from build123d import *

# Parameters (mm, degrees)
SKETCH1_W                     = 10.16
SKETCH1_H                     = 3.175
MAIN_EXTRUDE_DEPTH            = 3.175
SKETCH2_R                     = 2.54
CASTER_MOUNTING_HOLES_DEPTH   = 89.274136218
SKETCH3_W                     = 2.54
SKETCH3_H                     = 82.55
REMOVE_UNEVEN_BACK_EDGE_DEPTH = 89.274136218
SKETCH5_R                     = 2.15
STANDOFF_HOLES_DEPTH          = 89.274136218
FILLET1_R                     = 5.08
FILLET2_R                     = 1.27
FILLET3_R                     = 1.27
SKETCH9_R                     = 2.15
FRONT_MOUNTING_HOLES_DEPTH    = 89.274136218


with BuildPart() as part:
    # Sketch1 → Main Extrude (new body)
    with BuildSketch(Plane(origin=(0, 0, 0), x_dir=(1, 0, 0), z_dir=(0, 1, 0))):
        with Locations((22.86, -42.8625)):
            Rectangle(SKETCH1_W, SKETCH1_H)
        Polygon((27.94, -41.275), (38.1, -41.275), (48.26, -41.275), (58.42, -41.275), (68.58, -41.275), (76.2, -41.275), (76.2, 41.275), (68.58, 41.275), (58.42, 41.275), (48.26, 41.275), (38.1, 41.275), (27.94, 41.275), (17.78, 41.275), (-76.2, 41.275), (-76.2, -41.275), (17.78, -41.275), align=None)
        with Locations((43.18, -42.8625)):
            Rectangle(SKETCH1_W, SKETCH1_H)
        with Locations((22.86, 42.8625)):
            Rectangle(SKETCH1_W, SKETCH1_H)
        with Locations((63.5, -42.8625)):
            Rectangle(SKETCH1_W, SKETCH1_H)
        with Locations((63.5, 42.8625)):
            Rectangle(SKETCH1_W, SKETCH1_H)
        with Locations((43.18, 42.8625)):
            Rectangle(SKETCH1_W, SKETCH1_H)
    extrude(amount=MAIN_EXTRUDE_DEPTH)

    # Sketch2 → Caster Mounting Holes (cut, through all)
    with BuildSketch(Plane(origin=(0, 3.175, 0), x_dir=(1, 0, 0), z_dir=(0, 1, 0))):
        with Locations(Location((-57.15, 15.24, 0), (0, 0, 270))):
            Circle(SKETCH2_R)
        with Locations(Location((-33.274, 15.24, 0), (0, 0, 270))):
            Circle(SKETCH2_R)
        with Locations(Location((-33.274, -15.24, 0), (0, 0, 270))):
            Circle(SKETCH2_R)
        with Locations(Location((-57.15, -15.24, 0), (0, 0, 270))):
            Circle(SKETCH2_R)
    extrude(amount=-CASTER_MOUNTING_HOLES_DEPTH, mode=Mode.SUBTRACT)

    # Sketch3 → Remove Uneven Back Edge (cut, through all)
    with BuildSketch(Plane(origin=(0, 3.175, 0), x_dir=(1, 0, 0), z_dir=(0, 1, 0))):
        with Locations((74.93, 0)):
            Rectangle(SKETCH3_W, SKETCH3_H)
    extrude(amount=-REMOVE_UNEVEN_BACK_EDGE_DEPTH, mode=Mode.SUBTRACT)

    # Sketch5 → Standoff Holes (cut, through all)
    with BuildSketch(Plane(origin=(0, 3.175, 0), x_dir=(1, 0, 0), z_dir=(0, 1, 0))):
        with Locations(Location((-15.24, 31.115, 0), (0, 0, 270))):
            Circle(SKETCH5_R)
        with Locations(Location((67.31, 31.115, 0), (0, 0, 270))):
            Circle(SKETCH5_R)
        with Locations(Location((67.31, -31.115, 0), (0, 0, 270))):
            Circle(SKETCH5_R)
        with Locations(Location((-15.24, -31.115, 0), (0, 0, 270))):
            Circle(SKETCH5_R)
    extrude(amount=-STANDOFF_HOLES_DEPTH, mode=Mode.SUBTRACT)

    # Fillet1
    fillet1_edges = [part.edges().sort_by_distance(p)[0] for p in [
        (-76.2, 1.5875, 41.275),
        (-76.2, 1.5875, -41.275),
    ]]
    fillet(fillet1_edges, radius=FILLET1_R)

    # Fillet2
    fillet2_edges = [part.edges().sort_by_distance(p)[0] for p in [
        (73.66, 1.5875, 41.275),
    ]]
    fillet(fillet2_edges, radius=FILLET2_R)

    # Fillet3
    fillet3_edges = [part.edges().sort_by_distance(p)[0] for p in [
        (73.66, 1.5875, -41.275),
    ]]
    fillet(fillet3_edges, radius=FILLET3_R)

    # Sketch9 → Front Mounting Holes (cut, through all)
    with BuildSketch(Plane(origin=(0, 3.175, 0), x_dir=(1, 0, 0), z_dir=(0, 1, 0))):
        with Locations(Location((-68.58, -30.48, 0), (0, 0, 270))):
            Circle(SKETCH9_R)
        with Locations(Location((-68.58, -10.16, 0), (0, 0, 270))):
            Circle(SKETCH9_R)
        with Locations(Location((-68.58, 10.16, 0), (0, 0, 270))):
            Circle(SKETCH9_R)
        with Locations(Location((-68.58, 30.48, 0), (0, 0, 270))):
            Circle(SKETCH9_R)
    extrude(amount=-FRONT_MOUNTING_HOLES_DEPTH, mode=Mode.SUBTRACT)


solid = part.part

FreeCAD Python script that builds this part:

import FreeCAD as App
import Part
import Sketcher
from FreeCAD import Vector
Q = App.Units.Quantity


def edges_at(feature, points):
    """Names of the edges that pass closest to the given points."""
    edges = feature.Shape.Edges
    near = lambda p: min(range(len(edges)), key=lambda i: edges[i].distToShape(Part.Vertex(*p))[0])
    return sorted({f"Edge{near(p) + 1}" for p in points})


def add_polygon(sketch, points):
    """Adds a closed chain of lines whose ends are joined by coincident constraints."""
    first, n = sketch.GeometryCount, len(points)
    for a, b in zip(points, points[1:] + points[:1]):
        sketch.addGeometry(Part.LineSegment(App.Vector(*a, 0), App.Vector(*b, 0)), False)
    for i in range(n):
        sketch.addConstraint(Sketcher.Constraint("Coincident", first + i, 2, first + (i + 1) % n, 1))

doc = App.newDocument("Part")
body = doc.addObject("PartDesign::Body", "Body")

# Sketch on XZ plane
sketch1 = body.newObject("Sketcher::SketchObject", "Sketch")
sketch1.AttachmentSupport = (doc.getObject("XZ_Plane"), [""])
sketch1.MapMode = "FlatFace"
add_polygon(sketch1, [(17.8, 41.3), (17.8, 44.5), (27.9, 44.5), (27.9, 41.3), (38.1, 41.3), (38.1, 44.5), (48.3, 44.5), (48.3, 41.3), (58.4, 41.3), (58.4, 44.5), (68.6, 44.5), (68.6, 41.3), (76.2, 41.3), (76.2, -41.3), (68.6, -41.3), (68.6, -44.5), (58.4, -44.5), (58.4, -41.3), (48.3, -41.3), (48.3, -44.5), (38.1, -44.5), (38.1, -41.3), (27.9, -41.3), (27.9, -44.5), (17.8, -44.5), (17.8, -41.3), (-76.2, -41.3), (-76.2, 41.3)])  # lines 0-27
sketch1.addConstraint([
    Sketcher.Constraint("Vertical", 0),
    Sketcher.Constraint("Horizontal", 1),
    Sketcher.Constraint("Vertical", 2),
    Sketcher.Constraint("Horizontal", 3),
    Sketcher.Constraint("Vertical", 4),
    Sketcher.Constraint("Horizontal", 5),
    Sketcher.Constraint("Vertical", 6),
    Sketcher.Constraint("Horizontal", 7),
    Sketcher.Constraint("Vertical", 8),
    Sketcher.Constraint("Horizontal", 9),
    Sketcher.Constraint("Vertical", 10),
    Sketcher.Constraint("Horizontal", 11),
    Sketcher.Constraint("Vertical", 12),
    Sketcher.Constraint("Horizontal", 13),
    Sketcher.Constraint("Vertical", 14),
    Sketcher.Constraint("Horizontal", 15),
    Sketcher.Constraint("Vertical", 16),
    Sketcher.Constraint("Horizontal", 17),
    Sketcher.Constraint("Vertical", 18),
    Sketcher.Constraint("Horizontal", 19),
    Sketcher.Constraint("Vertical", 20),
    Sketcher.Constraint("Horizontal", 21),
    Sketcher.Constraint("Vertical", 22),
    Sketcher.Constraint("Horizontal", 23),
    Sketcher.Constraint("Vertical", 24),
    Sketcher.Constraint("Horizontal", 25),
    Sketcher.Constraint("Vertical", 26),
    Sketcher.Constraint("Horizontal", 27),
    Sketcher.Constraint("Symmetric", 11, 2, 25, 2, -1, 1),
    Sketcher.Constraint("Symmetric", 10, 2, 13, 2, -1),
    Sketcher.Constraint("Symmetric", 8, 2, 15, 2, -1),
    Sketcher.Constraint("Symmetric", 6, 2, 17, 2, -1),
    Sketcher.Constraint("Symmetric", 4, 2, 19, 2, -1),
    Sketcher.Constraint("Symmetric", 2, 2, 21, 2, -1),
    Sketcher.Constraint("Symmetric", 0, 2, 23, 2, -1),
    Sketcher.Constraint("Horizontal", 1, 2, 4, 2),
    Sketcher.Constraint("Horizontal", 3, 2, 6, 2),
    Sketcher.Constraint("Horizontal", 5, 2, 8, 2),
    Sketcher.Constraint("Horizontal", 7, 2, 10, 2),
    Sketcher.Constraint("Horizontal", 11, 2, 26, 2),
    Sketcher.Constraint("Equal", 1, 3),
    Sketcher.Constraint("Equal", 3, 5),
    Sketcher.Constraint("Equal", 5, 7),
    Sketcher.Constraint("Equal", 7, 9),
    Sketcher.Constraint("DistanceX", 1, 1, 1, 2, Q("0.4 in")),
    Sketcher.Constraint("DistanceX", 11, 1, 11, 2, Q("0.3 in")),
    Sketcher.Constraint("DistanceX", 25, 2, 25, 1, Q("3.7 in")),
    Sketcher.Constraint("DistanceY", 12, 2, 12, 1, Q("3.25 in")),
    Sketcher.Constraint("DistanceY", 0, 1, 0, 2, Q("0.125 in")),
])
pad1 = body.newObject("PartDesign::Pad", "Pad")
pad1.Profile = sketch1
pad1.Length = Q("0.125 in")
pad1.Reversed = True

# Sketch on XZ plane
sketch2 = body.newObject("Sketcher::SketchObject", "Sketch001")
sketch2.AttachmentSupport = (doc.getObject("XZ_Plane"), [""])
sketch2.MapMode = "FlatFace"
sketch2.AttachmentOffset = App.Placement(Vector(0, 0, -0.125 * 25.4), App.Rotation())
sketch2.addGeometry([
    Part.Circle(Vector(-57.1, -15.2, 0), Vector(0, 0, 1), 2.5),
    Part.Circle(Vector(-33.3, -15.2, 0), Vector(0, 0, 1), 2.5),
    Part.Circle(Vector(-33.3, 15.2, 0), Vector(0, 0, 1), 2.5),
    Part.Circle(Vector(-57.1, 15.2, 0), Vector(0, 0, 1), 2.5),
], False)
sketch2.addConstraint([
    Sketcher.Constraint("Equal", 0, 1),
    Sketcher.Constraint("Equal", 1, 2),
    Sketcher.Constraint("Equal", 2, 3),
    Sketcher.Constraint("Symmetric", 1, 3, 2, 3, -1),
    Sketcher.Constraint("Symmetric", 0, 3, 3, 3, -1),
    Sketcher.Constraint("Horizontal", 0, 3, 1, 3),
    Sketcher.Constraint("Diameter", 0, Q("0.2 in")),
    Sketcher.Constraint("DistanceY", 0, 3, -1, 1, Q("0.6 in")),
    Sketcher.Constraint("DistanceX", 0, 3, -1, 1, Q("2.25 in")),
    Sketcher.Constraint("DistanceX", 1, 3, -1, 1, Q("1.31 in")),
])
pocket1 = body.newObject("PartDesign::Pocket", "Pocket")
pocket1.Profile = sketch2
pocket1.Type = "ThroughAll"
pocket1.Reversed = True

# Sketch on XZ plane
sketch3 = body.newObject("Sketcher::SketchObject", "Sketch002")
sketch3.AttachmentSupport = (doc.getObject("XZ_Plane"), [""])
sketch3.MapMode = "FlatFace"
sketch3.AttachmentOffset = App.Placement(Vector(0, 0, -0.125 * 25.4), App.Rotation())
add_polygon(sketch3, [(73.7, -41.3), (73.7, 41.3), (76.2, 41.3), (76.2, -41.3)])  # lines 0-3
sketch3.addConstraint([
    Sketcher.Constraint("Vertical", 0),
    Sketcher.Constraint("Horizontal", 1),
    Sketcher.Constraint("Vertical", 2),
    Sketcher.Constraint("Horizontal", 3),
    Sketcher.Constraint("DistanceX", 1, 1, 1, 2, Q("0.1 in")),
    Sketcher.Constraint("DistanceX", -1, 1, 1, 2, Q("3 in")),
    Sketcher.Constraint("DistanceY", 0, 1, 0, 2, Q("3.25 in")),
    Sketcher.Constraint("DistanceY", -1, 1, 0, 2, Q("1.625 in")),
])
pocket2 = body.newObject("PartDesign::Pocket", "Pocket001")
pocket2.Profile = sketch3
pocket2.Type = "ThroughAll"
pocket2.Reversed = True

# Sketch on XZ plane
sketch4 = body.newObject("Sketcher::SketchObject", "Sketch003")
sketch4.AttachmentSupport = (doc.getObject("XZ_Plane"), [""])
sketch4.MapMode = "FlatFace"
sketch4.AttachmentOffset = App.Placement(Vector(0, 0, -0.125 * 25.4), App.Rotation())
sketch4.addGeometry([
    Part.Circle(Vector(-15.2, -31.1, 0), Vector(0, 0, 1), 2.1),
    Part.Circle(Vector(67.3, -31.1, 0), Vector(0, 0, 1), 2.1),
    Part.Circle(Vector(67.3, 31.1, 0), Vector(0, 0, 1), 2.1),
    Part.Circle(Vector(-15.2, 31.1, 0), Vector(0, 0, 1), 2.1),
], False)
sketch4.addConstraint([
    Sketcher.Constraint("Equal", 0, 1),
    Sketcher.Constraint("Equal", 1, 2),
    Sketcher.Constraint("Equal", 2, 3),
    Sketcher.Constraint("Symmetric", 1, 3, 2, 3, -1),
    Sketcher.Constraint("Symmetric", 0, 3, 3, 3, -1),
    Sketcher.Constraint("Horizontal", 0, 3, 1, 3),
    Sketcher.Constraint("DistanceX", 0, 3, -1, 1, Q("0.6 in")),
    Sketcher.Constraint("Diameter", 0, 4.3),
    Sketcher.Constraint("DistanceX", -1, 1, 1, 3, Q("2.65 in")),
    Sketcher.Constraint("DistanceY", 1, 3, 2, 3, Q("2.45 in")),
])
pocket3 = body.newObject("PartDesign::Pocket", "Pocket002")
pocket3.Profile = sketch4
pocket3.Type = "ThroughAll"
pocket3.Reversed = True
doc.recompute()

fillet = body.newObject("PartDesign::Fillet", "Fillet")
fillet.Base = (pocket3, edges_at(pocket3, [(-76.2, 1.587, 41.275), (-76.2, 1.587, -41.275)]))
fillet.Radius = Q("0.2 in")
doc.recompute()

fillet2 = body.newObject("PartDesign::Fillet", "Fillet001")
fillet2.Base = (fillet, edges_at(fillet, [(73.66, 1.587, 41.275)]))
fillet2.Radius = Q("0.05 in")
doc.recompute()

fillet3 = body.newObject("PartDesign::Fillet", "Fillet002")
fillet3.Base = (fillet2, edges_at(fillet2, [(73.66, 1.587, -41.275)]))
fillet3.Radius = Q("0.05 in")

# Sketch on XZ plane
sketch5 = body.newObject("Sketcher::SketchObject", "Sketch004")
sketch5.AttachmentSupport = (doc.getObject("XZ_Plane"), [""])
sketch5.MapMode = "FlatFace"
sketch5.AttachmentOffset = App.Placement(Vector(0, 0, -0.125 * 25.4), App.Rotation())
sketch5.addGeometry([
    Part.Circle(Vector(-68.6, 30.5, 0), Vector(0, 0, 1), 2.1),
    Part.Circle(Vector(-68.6, 10.2, 0), Vector(0, 0, 1), 2.1),
    Part.Circle(Vector(-68.6, -10.2, 0), Vector(0, 0, 1), 2.1),
    Part.Circle(Vector(-68.6, -30.5, 0), Vector(0, 0, 1), 2.1),
], False)
sketch5.addConstraint([
    Sketcher.Constraint("Equal", 0, 1),
    Sketcher.Constraint("Equal", 1, 2),
    Sketcher.Constraint("Equal", 2, 3),
    Sketcher.Constraint("Symmetric", 1, 3, 2, 3, -1),
    Sketcher.Constraint("Symmetric", 0, 3, 3, 3, -1),
    Sketcher.Constraint("Vertical", 0, 3, 1, 3),
    Sketcher.Constraint("DistanceX", 0, 3, -1, 1, Q("2.7 in")),
    Sketcher.Constraint("DistanceY", -1, 1, 0, 3, Q("1.2 in")),
    Sketcher.Constraint("DistanceY", -1, 1, 1, 3, Q("0.4 in")),
    Sketcher.Constraint("Diameter", 0, 4.3),
])
pocket4 = body.newObject("PartDesign::Pocket", "Pocket003")
pocket4.Profile = sketch5
pocket4.Type = "ThroughAll"
pocket4.Reversed = True

doc.recompute()
